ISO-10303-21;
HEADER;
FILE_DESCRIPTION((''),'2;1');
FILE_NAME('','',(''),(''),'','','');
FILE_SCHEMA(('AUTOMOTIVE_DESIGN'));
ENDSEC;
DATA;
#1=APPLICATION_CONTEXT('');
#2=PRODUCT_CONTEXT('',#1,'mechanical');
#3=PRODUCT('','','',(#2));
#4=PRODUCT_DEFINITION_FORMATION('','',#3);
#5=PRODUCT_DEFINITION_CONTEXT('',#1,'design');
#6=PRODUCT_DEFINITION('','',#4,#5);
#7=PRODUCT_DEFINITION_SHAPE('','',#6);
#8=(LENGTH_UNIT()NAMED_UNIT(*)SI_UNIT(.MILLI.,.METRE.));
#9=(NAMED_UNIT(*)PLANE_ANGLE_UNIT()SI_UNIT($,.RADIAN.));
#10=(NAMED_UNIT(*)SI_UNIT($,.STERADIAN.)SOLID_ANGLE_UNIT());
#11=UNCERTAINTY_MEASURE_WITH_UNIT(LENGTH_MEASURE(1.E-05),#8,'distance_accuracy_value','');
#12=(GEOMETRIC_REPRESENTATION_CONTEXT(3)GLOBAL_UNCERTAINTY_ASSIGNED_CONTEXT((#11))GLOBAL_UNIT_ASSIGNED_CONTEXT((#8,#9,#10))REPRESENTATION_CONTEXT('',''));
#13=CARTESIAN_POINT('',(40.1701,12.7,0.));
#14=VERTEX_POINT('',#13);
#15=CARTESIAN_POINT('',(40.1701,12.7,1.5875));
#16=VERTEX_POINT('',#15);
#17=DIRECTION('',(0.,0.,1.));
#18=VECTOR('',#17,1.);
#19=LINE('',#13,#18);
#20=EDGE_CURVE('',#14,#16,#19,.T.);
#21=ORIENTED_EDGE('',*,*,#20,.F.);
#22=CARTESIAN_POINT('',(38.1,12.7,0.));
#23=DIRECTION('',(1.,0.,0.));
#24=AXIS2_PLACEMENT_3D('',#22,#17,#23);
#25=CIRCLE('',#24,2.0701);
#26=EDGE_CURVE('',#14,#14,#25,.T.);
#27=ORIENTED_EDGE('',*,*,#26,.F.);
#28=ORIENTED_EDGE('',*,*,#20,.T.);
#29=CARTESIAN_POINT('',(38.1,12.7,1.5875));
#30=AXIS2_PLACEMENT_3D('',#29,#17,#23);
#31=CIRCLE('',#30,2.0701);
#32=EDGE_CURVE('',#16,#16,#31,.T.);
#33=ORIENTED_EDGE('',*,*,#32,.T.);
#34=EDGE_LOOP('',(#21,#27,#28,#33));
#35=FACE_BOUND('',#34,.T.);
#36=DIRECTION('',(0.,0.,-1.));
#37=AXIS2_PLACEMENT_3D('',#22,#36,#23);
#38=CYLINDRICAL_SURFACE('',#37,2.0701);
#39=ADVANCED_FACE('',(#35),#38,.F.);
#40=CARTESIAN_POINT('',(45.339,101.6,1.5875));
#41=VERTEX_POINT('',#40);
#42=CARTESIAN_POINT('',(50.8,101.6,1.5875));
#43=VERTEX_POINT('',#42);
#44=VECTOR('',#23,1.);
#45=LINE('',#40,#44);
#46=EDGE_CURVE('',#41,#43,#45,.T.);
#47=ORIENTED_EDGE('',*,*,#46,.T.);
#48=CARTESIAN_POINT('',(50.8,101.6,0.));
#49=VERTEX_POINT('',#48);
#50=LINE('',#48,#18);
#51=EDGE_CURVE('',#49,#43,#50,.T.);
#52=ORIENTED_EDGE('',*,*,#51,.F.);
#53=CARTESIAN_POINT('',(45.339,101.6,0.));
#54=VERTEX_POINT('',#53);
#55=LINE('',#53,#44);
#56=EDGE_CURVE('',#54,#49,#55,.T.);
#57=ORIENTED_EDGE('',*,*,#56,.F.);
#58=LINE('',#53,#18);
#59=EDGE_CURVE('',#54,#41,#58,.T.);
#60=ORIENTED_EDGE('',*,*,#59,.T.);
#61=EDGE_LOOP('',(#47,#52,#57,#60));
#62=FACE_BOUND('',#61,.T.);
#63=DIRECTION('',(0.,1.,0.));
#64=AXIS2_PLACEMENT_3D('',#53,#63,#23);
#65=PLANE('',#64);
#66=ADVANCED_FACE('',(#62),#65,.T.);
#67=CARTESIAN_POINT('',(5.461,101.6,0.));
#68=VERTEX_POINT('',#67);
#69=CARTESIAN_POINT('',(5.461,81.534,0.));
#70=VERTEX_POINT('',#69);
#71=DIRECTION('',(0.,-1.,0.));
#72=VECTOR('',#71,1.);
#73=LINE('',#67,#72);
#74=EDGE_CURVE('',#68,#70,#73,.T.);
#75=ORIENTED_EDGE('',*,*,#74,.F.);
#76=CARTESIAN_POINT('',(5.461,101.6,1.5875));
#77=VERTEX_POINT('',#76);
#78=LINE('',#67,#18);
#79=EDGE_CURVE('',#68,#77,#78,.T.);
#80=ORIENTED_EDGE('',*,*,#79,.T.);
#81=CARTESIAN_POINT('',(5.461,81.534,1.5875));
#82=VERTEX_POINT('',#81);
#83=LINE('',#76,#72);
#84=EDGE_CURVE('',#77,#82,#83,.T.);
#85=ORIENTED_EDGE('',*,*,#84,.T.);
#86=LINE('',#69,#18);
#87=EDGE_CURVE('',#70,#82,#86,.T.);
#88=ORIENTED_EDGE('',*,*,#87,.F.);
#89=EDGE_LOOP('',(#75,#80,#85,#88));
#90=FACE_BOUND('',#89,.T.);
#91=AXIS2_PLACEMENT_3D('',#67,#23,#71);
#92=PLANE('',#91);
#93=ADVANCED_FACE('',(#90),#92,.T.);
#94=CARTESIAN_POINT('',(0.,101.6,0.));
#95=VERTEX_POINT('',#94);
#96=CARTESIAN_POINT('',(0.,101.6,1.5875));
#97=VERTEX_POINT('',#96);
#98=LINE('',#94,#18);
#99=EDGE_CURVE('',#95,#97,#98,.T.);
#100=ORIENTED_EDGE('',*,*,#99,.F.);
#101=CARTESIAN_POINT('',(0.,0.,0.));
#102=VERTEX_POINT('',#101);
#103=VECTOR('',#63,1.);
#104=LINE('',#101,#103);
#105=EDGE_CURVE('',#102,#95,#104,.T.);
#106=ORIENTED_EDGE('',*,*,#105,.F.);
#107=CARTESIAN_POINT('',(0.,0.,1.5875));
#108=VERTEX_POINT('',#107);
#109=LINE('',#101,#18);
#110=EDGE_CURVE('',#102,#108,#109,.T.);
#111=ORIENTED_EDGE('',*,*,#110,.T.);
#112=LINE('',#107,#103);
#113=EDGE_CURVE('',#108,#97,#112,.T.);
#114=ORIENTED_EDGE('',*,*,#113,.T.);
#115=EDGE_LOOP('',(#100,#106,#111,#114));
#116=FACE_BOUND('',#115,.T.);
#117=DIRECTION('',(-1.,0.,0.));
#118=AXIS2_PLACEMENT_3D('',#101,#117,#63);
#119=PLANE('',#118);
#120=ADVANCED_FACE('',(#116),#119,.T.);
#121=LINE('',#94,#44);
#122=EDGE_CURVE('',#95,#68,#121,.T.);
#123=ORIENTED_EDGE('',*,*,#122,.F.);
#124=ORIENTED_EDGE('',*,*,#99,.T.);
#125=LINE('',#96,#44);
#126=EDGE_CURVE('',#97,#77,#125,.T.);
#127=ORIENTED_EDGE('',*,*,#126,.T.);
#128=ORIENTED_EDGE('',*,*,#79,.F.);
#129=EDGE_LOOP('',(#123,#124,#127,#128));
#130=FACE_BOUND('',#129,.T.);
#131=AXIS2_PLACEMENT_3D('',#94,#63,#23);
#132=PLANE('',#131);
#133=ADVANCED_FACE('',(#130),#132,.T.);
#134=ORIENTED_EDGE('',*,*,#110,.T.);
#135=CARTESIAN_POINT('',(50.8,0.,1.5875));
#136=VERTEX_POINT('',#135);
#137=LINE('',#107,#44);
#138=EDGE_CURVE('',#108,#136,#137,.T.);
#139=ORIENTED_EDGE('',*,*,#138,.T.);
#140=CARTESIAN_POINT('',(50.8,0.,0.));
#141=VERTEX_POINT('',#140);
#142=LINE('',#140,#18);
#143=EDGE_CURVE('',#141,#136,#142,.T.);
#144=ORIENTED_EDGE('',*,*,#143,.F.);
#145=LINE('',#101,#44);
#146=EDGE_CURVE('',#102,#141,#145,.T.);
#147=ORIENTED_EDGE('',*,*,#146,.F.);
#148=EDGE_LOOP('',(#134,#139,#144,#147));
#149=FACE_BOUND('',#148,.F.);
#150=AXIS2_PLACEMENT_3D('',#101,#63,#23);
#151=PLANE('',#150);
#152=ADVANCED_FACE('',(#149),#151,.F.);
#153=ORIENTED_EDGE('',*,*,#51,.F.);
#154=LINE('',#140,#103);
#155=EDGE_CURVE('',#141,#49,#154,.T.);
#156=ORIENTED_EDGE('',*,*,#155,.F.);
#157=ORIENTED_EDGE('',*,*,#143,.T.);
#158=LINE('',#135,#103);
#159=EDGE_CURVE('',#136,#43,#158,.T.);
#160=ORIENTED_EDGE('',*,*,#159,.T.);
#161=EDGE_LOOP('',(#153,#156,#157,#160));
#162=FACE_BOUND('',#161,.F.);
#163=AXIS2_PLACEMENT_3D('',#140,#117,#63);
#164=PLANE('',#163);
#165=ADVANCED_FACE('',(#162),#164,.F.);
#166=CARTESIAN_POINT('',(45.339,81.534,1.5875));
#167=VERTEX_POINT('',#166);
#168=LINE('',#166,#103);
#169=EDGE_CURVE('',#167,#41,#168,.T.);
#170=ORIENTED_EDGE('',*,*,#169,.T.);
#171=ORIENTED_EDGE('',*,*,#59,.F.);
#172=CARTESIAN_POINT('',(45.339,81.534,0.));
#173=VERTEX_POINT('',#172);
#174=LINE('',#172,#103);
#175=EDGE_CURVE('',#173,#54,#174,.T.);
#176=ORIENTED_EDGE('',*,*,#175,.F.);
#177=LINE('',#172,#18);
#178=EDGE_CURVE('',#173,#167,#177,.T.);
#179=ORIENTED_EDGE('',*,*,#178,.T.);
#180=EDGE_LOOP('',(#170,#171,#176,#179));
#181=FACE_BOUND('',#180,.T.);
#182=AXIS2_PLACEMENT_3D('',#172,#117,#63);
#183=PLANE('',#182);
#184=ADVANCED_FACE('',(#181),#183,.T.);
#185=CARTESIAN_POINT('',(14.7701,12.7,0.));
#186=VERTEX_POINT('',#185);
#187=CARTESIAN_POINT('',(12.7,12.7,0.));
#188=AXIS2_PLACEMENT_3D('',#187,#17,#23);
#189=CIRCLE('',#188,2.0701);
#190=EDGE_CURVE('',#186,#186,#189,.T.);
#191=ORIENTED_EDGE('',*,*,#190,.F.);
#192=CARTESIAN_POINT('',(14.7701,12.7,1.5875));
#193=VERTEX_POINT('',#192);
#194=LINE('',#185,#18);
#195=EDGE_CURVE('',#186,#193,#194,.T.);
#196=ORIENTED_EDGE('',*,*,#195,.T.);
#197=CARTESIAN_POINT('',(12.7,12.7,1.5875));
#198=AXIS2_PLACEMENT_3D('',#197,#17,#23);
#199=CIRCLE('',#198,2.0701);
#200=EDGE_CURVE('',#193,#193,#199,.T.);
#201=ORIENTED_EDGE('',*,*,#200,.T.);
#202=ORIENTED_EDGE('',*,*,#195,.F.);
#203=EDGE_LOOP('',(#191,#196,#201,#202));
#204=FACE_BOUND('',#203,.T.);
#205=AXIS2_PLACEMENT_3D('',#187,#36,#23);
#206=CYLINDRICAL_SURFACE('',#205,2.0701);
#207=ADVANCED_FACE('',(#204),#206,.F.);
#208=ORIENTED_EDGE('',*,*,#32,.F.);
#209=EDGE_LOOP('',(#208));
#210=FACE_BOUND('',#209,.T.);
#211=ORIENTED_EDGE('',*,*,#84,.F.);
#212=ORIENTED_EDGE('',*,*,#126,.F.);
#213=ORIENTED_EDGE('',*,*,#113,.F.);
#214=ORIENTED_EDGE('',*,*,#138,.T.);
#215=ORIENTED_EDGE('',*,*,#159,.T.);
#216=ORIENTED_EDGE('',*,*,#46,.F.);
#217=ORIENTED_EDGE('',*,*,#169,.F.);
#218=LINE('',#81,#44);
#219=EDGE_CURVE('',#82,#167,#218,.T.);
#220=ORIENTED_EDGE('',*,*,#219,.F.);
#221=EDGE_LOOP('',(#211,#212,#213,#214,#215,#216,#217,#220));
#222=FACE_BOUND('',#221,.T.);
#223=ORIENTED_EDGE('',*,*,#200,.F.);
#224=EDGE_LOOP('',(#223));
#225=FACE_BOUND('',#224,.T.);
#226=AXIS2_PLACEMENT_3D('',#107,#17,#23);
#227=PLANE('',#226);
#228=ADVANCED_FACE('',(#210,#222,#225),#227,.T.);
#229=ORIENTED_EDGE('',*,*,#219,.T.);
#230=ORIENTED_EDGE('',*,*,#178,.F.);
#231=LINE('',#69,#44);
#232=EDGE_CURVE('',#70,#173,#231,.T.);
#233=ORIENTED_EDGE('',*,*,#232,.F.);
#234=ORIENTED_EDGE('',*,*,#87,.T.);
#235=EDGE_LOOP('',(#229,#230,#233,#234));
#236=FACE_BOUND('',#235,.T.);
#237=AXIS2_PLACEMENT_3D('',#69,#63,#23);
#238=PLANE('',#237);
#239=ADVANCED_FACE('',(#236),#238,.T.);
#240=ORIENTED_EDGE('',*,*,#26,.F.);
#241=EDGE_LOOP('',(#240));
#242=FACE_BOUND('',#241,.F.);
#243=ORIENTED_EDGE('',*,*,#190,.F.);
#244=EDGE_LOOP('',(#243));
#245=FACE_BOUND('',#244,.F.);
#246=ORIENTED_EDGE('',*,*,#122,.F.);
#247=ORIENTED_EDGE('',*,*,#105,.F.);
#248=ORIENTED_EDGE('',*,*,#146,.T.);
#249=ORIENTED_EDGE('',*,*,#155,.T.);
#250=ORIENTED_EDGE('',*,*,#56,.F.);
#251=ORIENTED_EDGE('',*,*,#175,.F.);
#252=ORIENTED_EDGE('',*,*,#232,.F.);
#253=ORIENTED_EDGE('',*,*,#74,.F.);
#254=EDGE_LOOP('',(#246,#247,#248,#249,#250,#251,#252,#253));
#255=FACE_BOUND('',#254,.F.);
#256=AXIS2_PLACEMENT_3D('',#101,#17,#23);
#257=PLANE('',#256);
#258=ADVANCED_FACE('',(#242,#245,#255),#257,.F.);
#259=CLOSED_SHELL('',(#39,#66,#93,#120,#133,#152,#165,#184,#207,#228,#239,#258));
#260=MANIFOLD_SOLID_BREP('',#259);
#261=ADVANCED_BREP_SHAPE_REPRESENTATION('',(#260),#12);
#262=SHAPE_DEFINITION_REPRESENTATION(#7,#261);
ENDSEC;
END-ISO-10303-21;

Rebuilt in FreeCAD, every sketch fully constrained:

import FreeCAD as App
import Part
import Sketcher
Q = App.Units.Quantity


def add_polygon(sketch, points):
    """Adds a closed chain of lines whose ends are joined by coincident constraints."""
    first, n = sketch.GeometryCount, len(points)
    for a, b in zip(points, points[1:] + points[:1]):
        sketch.addGeometry(Part.LineSegment(App.Vector(*a, 0), App.Vector(*b, 0)), False)
    for i in range(n):
        sketch.addConstraint(Sketcher.Constraint("Coincident", first + i, 2, first + (i + 1) % n, 1))

doc = App.newDocument("Part")
body = doc.addObject("PartDesign::Body", "Body")

sketch1 = body.newObject("Sketcher::SketchObject", "Sketch")
sketch1.AttachmentSupport = (doc.getObject("XY_Plane"), [""])
sketch1.MapMode = "FlatFace"
add_polygon(sketch1, [(0, 101.6), (0, 0), (50.8, 0), (50.8, 101.6), (45.3, 101.6), (45.3, 81.5), (5.5, 81.5), (5.5, 101.6)])
sketch1.addGeometry(Part.Circle(App.Vector(12.7, 12.7, 0), App.Vector(0, 0, 1), 2.1), False)
sketch1.addGeometry(Part.Circle(App.Vector(38.1, 12.7, 0), App.Vector(0, 0, 1), 2.1), False)
sketch1.addConstraint([
    Sketcher.Constraint("Vertical", 0),
    Sketcher.Constraint("Horizontal", 1),
    Sketcher.Constraint("Vertical", 2),
    Sketcher.Constraint("Horizontal", 3),
    Sketcher.Constraint("Vertical", 4),
    Sketcher.Constraint("Horizontal", 5),
    Sketcher.Constraint("Vertical", 6),
    Sketcher.Constraint("Horizontal", 7),
    Sketcher.Constraint("Coincident", 0, 2, -1, 1),
    Sketcher.Constraint("Equal", 8, 9),
    Sketcher.Constraint("Horizontal", 8, 3, 9, 3),
    Sketcher.Constraint("Horizontal", 3, 2, 6, 2),
    Sketcher.Constraint("Equal", 3, 7),
    Sketcher.Constraint("DistanceX", 1, 1, 1, 2, Q("2 in")),
    Sketcher.Constraint("DistanceY", 0, 2, 0, 1, Q("4 in")),
    Sketcher.Constraint("Diameter", 8, Q("0.163 in")),
    Sketcher.Constraint("DistanceY", 4, 2, 4, 1, Q("0.79 in")),
    Sketcher.Constraint("DistanceX", -1, 1, 8, 3, Q("0.5 in")),
    Sketcher.Constraint("DistanceY", -1, 1, 8, 3, Q("0.5 in")),
    Sketcher.Constraint("DistanceX", 9, 3, 1, 2, Q("0.5 in")),
    Sketcher.Constraint("DistanceX", 3, 2, 3, 1, Q("0.215 in")),
])
pad1 = body.newObject("PartDesign::Pad", "Pad")
pad1.Profile = sketch1
pad1.Length = Q("0.0625 in")

doc.recompute()
